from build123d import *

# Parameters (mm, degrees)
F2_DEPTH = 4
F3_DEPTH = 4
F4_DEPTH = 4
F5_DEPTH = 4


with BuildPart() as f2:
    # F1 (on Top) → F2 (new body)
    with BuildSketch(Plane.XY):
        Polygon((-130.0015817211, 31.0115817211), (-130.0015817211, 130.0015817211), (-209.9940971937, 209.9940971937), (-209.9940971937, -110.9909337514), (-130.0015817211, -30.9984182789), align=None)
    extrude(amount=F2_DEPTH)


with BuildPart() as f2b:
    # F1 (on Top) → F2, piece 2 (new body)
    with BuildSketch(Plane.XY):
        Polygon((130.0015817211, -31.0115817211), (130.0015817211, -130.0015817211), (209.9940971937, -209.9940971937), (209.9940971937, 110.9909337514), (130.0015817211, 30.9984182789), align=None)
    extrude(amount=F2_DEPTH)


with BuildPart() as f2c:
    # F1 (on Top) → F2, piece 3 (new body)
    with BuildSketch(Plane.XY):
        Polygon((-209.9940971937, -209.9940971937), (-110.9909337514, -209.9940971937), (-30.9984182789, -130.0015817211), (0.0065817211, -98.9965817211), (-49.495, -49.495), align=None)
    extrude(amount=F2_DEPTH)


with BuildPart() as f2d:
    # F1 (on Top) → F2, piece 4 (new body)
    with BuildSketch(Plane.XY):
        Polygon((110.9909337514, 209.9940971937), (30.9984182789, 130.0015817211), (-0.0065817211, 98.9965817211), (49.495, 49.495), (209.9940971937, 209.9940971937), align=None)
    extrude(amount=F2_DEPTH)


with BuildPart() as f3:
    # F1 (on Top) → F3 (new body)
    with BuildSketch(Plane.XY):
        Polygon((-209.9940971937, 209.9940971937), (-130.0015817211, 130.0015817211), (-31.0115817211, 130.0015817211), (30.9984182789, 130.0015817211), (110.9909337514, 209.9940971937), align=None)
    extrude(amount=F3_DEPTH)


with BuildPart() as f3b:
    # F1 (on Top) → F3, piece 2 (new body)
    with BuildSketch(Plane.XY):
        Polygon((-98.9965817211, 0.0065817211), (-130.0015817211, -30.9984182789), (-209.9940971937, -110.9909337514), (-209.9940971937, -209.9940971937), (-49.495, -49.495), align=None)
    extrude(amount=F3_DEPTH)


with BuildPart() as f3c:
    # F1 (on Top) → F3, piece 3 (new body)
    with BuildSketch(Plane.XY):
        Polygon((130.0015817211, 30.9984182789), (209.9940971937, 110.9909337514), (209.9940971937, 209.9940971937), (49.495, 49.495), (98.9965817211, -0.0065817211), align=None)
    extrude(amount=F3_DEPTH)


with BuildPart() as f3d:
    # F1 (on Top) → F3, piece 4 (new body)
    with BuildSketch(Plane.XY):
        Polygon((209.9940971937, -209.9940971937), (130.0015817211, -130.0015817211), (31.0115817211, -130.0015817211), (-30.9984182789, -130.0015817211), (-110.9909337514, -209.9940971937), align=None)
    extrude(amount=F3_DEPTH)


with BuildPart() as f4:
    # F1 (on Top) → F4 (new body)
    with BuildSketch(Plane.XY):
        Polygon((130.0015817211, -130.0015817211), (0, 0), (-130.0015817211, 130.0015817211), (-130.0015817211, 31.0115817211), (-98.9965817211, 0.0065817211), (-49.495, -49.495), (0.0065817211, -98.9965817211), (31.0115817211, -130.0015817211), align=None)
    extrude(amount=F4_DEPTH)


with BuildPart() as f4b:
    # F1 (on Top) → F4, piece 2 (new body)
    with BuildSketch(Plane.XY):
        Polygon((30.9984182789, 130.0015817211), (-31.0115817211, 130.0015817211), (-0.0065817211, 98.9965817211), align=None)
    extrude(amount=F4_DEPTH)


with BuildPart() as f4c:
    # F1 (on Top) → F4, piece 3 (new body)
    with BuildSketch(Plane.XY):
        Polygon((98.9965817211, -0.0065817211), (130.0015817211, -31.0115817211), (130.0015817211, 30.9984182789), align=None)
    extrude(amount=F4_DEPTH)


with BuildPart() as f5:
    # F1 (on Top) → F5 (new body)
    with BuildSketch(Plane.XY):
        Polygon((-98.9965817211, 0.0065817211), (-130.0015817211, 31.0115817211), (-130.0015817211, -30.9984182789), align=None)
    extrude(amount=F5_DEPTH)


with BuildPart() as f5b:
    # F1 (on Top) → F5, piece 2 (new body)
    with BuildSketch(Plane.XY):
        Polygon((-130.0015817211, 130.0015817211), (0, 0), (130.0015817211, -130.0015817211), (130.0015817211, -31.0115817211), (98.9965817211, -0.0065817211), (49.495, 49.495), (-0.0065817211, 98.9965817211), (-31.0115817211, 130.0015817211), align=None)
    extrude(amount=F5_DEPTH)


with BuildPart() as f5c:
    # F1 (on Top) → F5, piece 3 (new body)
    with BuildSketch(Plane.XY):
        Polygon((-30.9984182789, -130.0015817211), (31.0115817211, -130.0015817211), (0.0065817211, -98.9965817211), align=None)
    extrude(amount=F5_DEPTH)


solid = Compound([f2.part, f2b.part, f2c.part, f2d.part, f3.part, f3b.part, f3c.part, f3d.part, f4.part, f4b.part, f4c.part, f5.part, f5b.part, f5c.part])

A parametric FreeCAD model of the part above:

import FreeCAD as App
import Part
import Sketcher
Q = App.Units.Quantity

doc = App.newDocument("Part")
body = doc.addObject("PartDesign::Body", "Body")

# Sketch on XY plane
sketch1 = body.newObject("Sketcher::SketchObject", "Sketch")
sketch1.AttachmentSupport = (doc.getObject("XY_Plane"), [""])
sketch1.MapMode = "FlatFace"
sketch1.addGeometry([
    Part.LineSegment(App.Vector(-130, 130, 0), App.Vector(-210, 210, 0)),
    Part.LineSegment(App.Vector(-210, 210, 0), App.Vector(-210, -111, 0)),
    Part.LineSegment(App.Vector(-210, -111, 0), App.Vector(-130, -31, 0)),
    Part.LineSegment(App.Vector(-130, -31, 0), App.Vector(-130, 130, 0)),
], False)
sketch1.addConstraint([
    Sketcher.Constraint("Coincident", 0, 2, 1, 1),
    Sketcher.Constraint("Coincident", 1, 2, 2, 1),
    Sketcher.Constraint("Coincident", 2, 2, 3, 1),
    Sketcher.Constraint("Coincident", 3, 2, 0, 1),
    Sketcher.Constraint("Vertical", 1),
    Sketcher.Constraint("Vertical", 3),
    Sketcher.Constraint("Perpendicular", 0, 2),
    Sketcher.Constraint("Equal", 0, 2),
    Sketcher.Constraint("DistanceY", 3, 1, 3, 2, 161.0),
    Sketcher.Constraint("Distance", 0, 113.1265),
    Sketcher.Constraint("DistanceX", 2, 2, -1, 1, 130.001582),
    Sketcher.Constraint("DistanceY", 2, 2, -1, 1, 30.998418),
])
pad1 = body.newObject("PartDesign::Pad", "Pad")
pad1.Profile = sketch1
pad1.Length = 4
body2 = doc.addObject("PartDesign::Body", "Body001")

# Sketch on XY plane
sketch2 = body2.newObject("Sketcher::SketchObject", "Sketch001")
sketch2.AttachmentSupport = (doc.getObject("XY_Plane001"), [""])
sketch2.MapMode = "FlatFace"
sketch2.addGeometry([
    Part.LineSegment(App.Vector(130, -130, 0), App.Vector(210, -210, 0)),
    Part.LineSegment(App.Vector(210, -210, 0), App.Vector(210, 111, 0)),
    Part.LineSegment(App.Vector(210, 111, 0), App.Vector(130, 31, 0)),
    Part.LineSegment(App.Vector(130, 31, 0), App.Vector(130, -130, 0)),
], False)
sketch2.addConstraint([
    Sketcher.Constraint("Coincident", 0, 2, 1, 1),
    Sketcher.Constraint("Coincident", 1, 2, 2, 1),
    Sketcher.Constraint("Coincident", 2, 2, 3, 1),
    Sketcher.Constraint("Coincident", 3, 2, 0, 1),
    Sketcher.Constraint("Vertical", 1),
    Sketcher.Constraint("Vertical", 3),
    Sketcher.Constraint("Perpendicular", 0, 2),
    Sketcher.Constraint("Equal", 0, 2),
    Sketcher.Constraint("DistanceY", 3, 2, 3, 1, 161.0),
    Sketcher.Constraint("Distance", 0, 113.1265),
    Sketcher.Constraint("DistanceX", -1, 1, 2, 2, 130.001582),
    Sketcher.Constraint("DistanceY", -1, 1, 2, 2, 30.998418),
])
pad2 = body2.newObject("PartDesign::Pad", "Pad001")
pad2.Profile = sketch2
pad2.Length = 4
body3 = doc.addObject("PartDesign::Body", "Body002")

# Sketch on XY plane
sketch3 = body3.newObject("Sketcher::SketchObject", "Sketch002")
sketch3.AttachmentSupport = (doc.getObject("XY_Plane002"), [""])
sketch3.MapMode = "FlatFace"
sketch3.addGeometry([
    Part.LineSegment(App.Vector(-210, -210, 0), App.Vector(-111, -210, 0)),
    Part.LineSegment(App.Vector(-111, -210, 0), App.Vector(0, -99, 0)),
    Part.LineSegment(App.Vector(0, -99, 0), App.Vector(-49, -49, 0)),
    Part.LineSegment(App.Vector(-49, -49, 0), App.Vector(-210, -210, 0)),
], False)
sketch3.addConstraint([
    Sketcher.Constraint("Coincident", 0, 2, 1, 1),
    Sketcher.Constraint("Coincident", 1, 2, 2, 1),
    Sketcher.Constraint("Coincident", 2, 2, 3, 1),
    Sketcher.Constraint("Coincident", 3, 2, 0, 1),
    Sketcher.Constraint("Horizontal", 0),
    Sketcher.Constraint("Perpendicular", 1, 2),
    Sketcher.Constraint("Perpendicular", 2, 3),
    Sketcher.Constraint("Angle", 1, Q("45 deg")),
    Sketcher.Constraint("Distance", 3, 226.98),
    Sketcher.Constraint("DistanceX", 2, 2, -1, 1, 49.495),
    Sketcher.Constraint("DistanceY", 2, 2, -1, 1, 49.495),
    Sketcher.Constraint("Distance", 1, 156.974192),
])
pad3 = body3.newObject("PartDesign::Pad", "Pad002")
pad3.Profile = sketch3
pad3.Length = 4
body4 = doc.addObject("PartDesign::Body", "Body003")

# Sketch on XY plane
sketch4 = body4.newObject("Sketcher::SketchObject", "Sketch003")
sketch4.AttachmentSupport = (doc.getObject("XY_Plane003"), [""])
sketch4.MapMode = "FlatFace"
sketch4.addGeometry([
    Part.LineSegment(App.Vector(111, 210, 0), App.Vector(0, 99, 0)),
    Part.LineSegment(App.Vector(0, 99, 0), App.Vector(49, 49, 0)),
    Part.LineSegment(App.Vector(49, 49, 0), App.Vector(210, 210, 0)),
    Part.LineSegment(App.Vector(210, 210, 0), App.Vector(111, 210, 0)),
], False)
sketch4.addConstraint([
    Sketcher.Constraint("Coincident", 0, 2, 1, 1),
    Sketcher.Constraint("Coincident", 1, 2, 2, 1),
    Sketcher.Constraint("Coincident", 2, 2, 3, 1),
    Sketcher.Constraint("Coincident", 3, 2, 0, 1),
    Sketcher.Constraint("Horizontal", 3),
    Sketcher.Constraint("Perpendicular", 0, 1),
    Sketcher.Constraint("Perpendicular", 1, 2),
    Sketcher.Constraint("Angle", 0, Q("-135 deg")),
    Sketcher.Constraint("Distance", 2, 226.98),
    Sketcher.Constraint("DistanceX", -1, 1, 1, 2, 49.495),
    Sketcher.Constraint("DistanceY", -1, 1, 1, 2, 49.495),
    Sketcher.Constraint("Distance", 0, 156.974192),
])
pad4 = body4.newObject("PartDesign::Pad", "Pad003")
pad4.Profile = sketch4
pad4.Length = 4
body5 = doc.addObject("PartDesign::Body", "Body004")

# Sketch on XY plane
sketch5 = body5.newObject("Sketcher::SketchObject", "Sketch004")
sketch5.AttachmentSupport = (doc.getObject("XY_Plane004"), [""])
sketch5.MapMode = "FlatFace"
sketch5.addGeometry([
    Part.LineSegment(App.Vector(-210, 210, 0), App.Vector(-130, 130, 0)),
    Part.LineSegment(App.Vector(-130, 130, 0), App.Vector(31, 130, 0)),
    Part.LineSegment(App.Vector(31, 130, 0), App.Vector(111, 210, 0)),
    Part.LineSegment(App.Vector(111, 210, 0), App.Vector(-210, 210, 0)),
], False)
sketch5.addConstraint([
    Sketcher.Constraint("Coincident", 0, 2, 1, 1),
    Sketcher.Constraint("Coincident", 1, 2, 2, 1),
    Sketcher.Constraint("Coincident", 2, 2, 3, 1),
    Sketcher.Constraint("Coincident", 3, 2, 0, 1),
    Sketcher.Constraint("Horizontal", 1),
    Sketcher.Constraint("Horizontal", 3),
    Sketcher.Constraint("Perpendicular", 0, 2),
    Sketcher.Constraint("Equal", 0, 2),
    Sketcher.Constraint("DistanceX", 1, 1, 1, 2, 161.0),
    Sketcher.Constraint("Distance", 0, 113.1265),
    Sketcher.Constraint("DistanceX", 0, 2, -1, 1, 130.001582),
    Sketcher.Constraint("DistanceY", -1, 1, 0, 2, 130.001582),
])
pad5 = body5.newObject("PartDesign::Pad", "Pad004")
pad5.Profile = sketch5
pad5.Length = 4
body6 = doc.addObject("PartDesign::Body", "Body005")

# Sketch on XY plane
sketch6 = body6.newObject("Sketcher::SketchObject", "Sketch005")
sketch6.AttachmentSupport = (doc.getObject("XY_Plane005"), [""])
sketch6.MapMode = "FlatFace"
sketch6.addGeometry([
    Part.LineSegment(App.Vector(-99, 0, 0), App.Vector(-210, -111, 0)),
    Part.LineSegment(App.Vector(-210, -111, 0), App.Vector(-210, -210, 0)),
    Part.LineSegment(App.Vector(-210, -210, 0), App.Vector(-49, -49, 0)),
    Part.LineSegment(App.Vector(-49, -49, 0), App.Vector(-99, 0, 0)),
], False)
sketch6.addConstraint([
    Sketcher.Constraint("Coincident", 0, 2, 1, 1),
    Sketcher.Constraint("Coincident", 1, 2, 2, 1),
    Sketcher.Constraint("Coincident", 2, 2, 3, 1),
    Sketcher.Constraint("Coincident", 3, 2, 0, 1),
    Sketcher.Constraint("Vertical", 1),
    Sketcher.Constraint("Parallel", 0, 2),
    Sketcher.Constraint("Perpendicular", 2, 3),
    Sketcher.Constraint("Angle", 0, Q("-135 deg")),
    Sketcher.Constraint("Distance", 2, 226.98),
    Sketcher.Constraint("DistanceX", 2, 2, -1, 1, 49.495),
    Sketcher.Constraint("DistanceY", 2, 2, -1, 1, 49.495),
    Sketcher.Constraint("Distance", 0, 156.974192),
])
pad6 = body6.newObject("PartDesign::Pad", "Pad005")
pad6.Profile = sketch6
pad6.Length = 4
body7 = doc.addObject("PartDesign::Body", "Body006")

# Sketch on XY plane
sketch7 = body7.newObject("Sketcher::SketchObject", "Sketch006")
sketch7.AttachmentSupport = (doc.getObject("XY_Plane006"), [""])
sketch7.MapMode = "FlatFace"
sketch7.addGeometry([
    Part.LineSegment(App.Vector(210, 111, 0), App.Vector(210, 210, 0)),
    Part.LineSegment(App.Vector(210, 210, 0), App.Vector(49, 49, 0)),
    Part.LineSegment(App.Vector(49, 49, 0), App.Vector(99, 0, 0)),
    Part.LineSegment(App.Vector(99, 0, 0), App.Vector(210, 111, 0)),
], False)
sketch7.addConstraint([
    Sketcher.Constraint("Coincident", 0, 2, 1, 1),
    Sketcher.Constraint("Coincident", 1, 2, 2, 1),
    Sketcher.Constraint("Coincident", 2, 2, 3, 1),
    Sketcher.Constraint("Coincident", 3, 2, 0, 1),
    Sketcher.Constraint("Vertical", 0),
    Sketcher.Constraint("Perpendicular", 1, 2),
    Sketcher.Constraint("Perpendicular", 2, 3),
    Sketcher.Constraint("Angle", 1, Q("-135 deg")),
    Sketcher.Constraint("Distance", 1, 226.98),
    Sketcher.Constraint("DistanceX", -1, 1, 1, 2, 49.495),
    Sketcher.Constraint("DistanceY", -1, 1, 1, 2, 49.495),
    Sketcher.Constraint("Distance", 2, 70.005808),
])
pad7 = body7.newObject("PartDesign::Pad", "Pad006")
pad7.Profile = sketch7
pad7.Length = 4
body8 = doc.addObject("PartDesign::Body", "Body007")

# Sketch on XY plane
sketch8 = body8.newObject("Sketcher::SketchObject", "Sketch007")
sketch8.AttachmentSupport = (doc.getObject("XY_Plane007"), [""])
sketch8.MapMode = "FlatFace"
sketch8.addGeometry([
    Part.LineSegment(App.Vector(210, -210, 0), App.Vector(130, -130, 0)),
    Part.LineSegment(App.Vector(130, -130, 0), App.Vector(-31, -130, 0)),
    Part.LineSegment(App.Vector(-31, -130, 0), App.Vector(-111, -210, 0)),
    Part.LineSegment(App.Vector(-111, -210, 0), App.Vector(210, -210, 0)),
], False)
sketch8.addConstraint([
    Sketcher.Constraint("Coincident", 0, 2, 1, 1),
    Sketcher.Constraint("Coincident", 1, 2, 2, 1),
    Sketcher.Constraint("Coincident", 2, 2, 3, 1),
    Sketcher.Constraint("Coincident", 3, 2, 0, 1),
    Sketcher.Constraint("Horizontal", 1),
    Sketcher.Constraint("Horizontal", 3),
    Sketcher.Constraint("Perpendicular", 0, 2),
    Sketcher.Constraint("Equal", 0, 2),
    Sketcher.Constraint("DistanceX", 1, 2, 1, 1, 161.0),
    Sketcher.Constraint("Distance", 0, 113.1265),
    Sketcher.Constraint("DistanceX", -1, 1, 0, 2, 130.001582),
    Sketcher.Constraint("DistanceY", 0, 2, -1, 1, 130.001582),
])
pad8 = body8.newObject("PartDesign::Pad", "Pad007")
pad8.Profile = sketch8
pad8.Length = 4
body9 = doc.addObject("PartDesign::Body", "Body008")

# Sketch on XY plane
sketch9 = body9.newObject("Sketcher::SketchObject", "Sketch008")
sketch9.AttachmentSupport = (doc.getObject("XY_Plane008"), [""])
sketch9.MapMode = "FlatFace"
sketch9.addGeometry([
    Part.LineSegment(App.Vector(130, -130, 0), App.Vector(-130, 130, 0)),
    Part.LineSegment(App.Vector(-130, 130, 0), App.Vector(-130, 31, 0)),
    Part.LineSegment(App.Vector(-130, 31, 0), App.Vector(31, -130, 0)),
    Part.LineSegment(App.Vector(31, -130, 0), App.Vector(130, -130, 0)),
], False)
sketch9.addConstraint([
    Sketcher.Constraint("Coincident", 0, 2, 1, 1),
    Sketcher.Constraint("Coincident", 1, 2, 2, 1),
    Sketcher.Constraint("Coincident", 2, 2, 3, 1),
    Sketcher.Constraint("Coincident", 3, 2, 0, 1),
    Sketcher.Constraint("Vertical", 1),
    Sketcher.Constraint("Horizontal", 3),
    Sketcher.Constraint("Symmetric", 0, 2, 3, 2, -1, 1),
    Sketcher.Constraint("Parallel", 0, 2),
    Sketcher.Constraint("Equal", 3, 1),
    Sketcher.Constraint("Distance", 0, 367.7),
    Sketcher.Constraint("DistanceX", 3, 1, 3, 2, 98.99),
])
pad9 = body9.newObject("PartDesign::Pad", "Pad008")
pad9.Profile = sketch9
pad9.Length = 4
body10 = doc.addObject("PartDesign::Body", "Body009")

# Sketch on XY plane
sketch10 = body10.newObject("Sketcher::SketchObject", "Sketch009")
sketch10.AttachmentSupport = (doc.getObject("XY_Plane009"), [""])
sketch10.MapMode = "FlatFace"
sketch10.addGeometry([
    Part.LineSegment(App.Vector(31, 130, 0), App.Vector(-31, 130, 0)),
    Part.LineSegment(App.Vector(-31, 130, 0), App.Vector(0, 99, 0)),
    Part.LineSegment(App.Vector(0, 99, 0), App.Vector(31, 130, 0)),
], False)
sketch10.addConstraint([
    Sketcher.Constraint("Coincident", 0, 2, 1, 1),
    Sketcher.Constraint("Coincident", 1, 2, 2, 1),
    Sketcher.Constraint("Coincident", 2, 2, 0, 1),
    Sketcher.Constraint("Horizontal", 0),
    Sketcher.Constraint("Perpendicular", 1, 2),
    Sketcher.Constraint("Equal", 1, 2),
    Sketcher.Constraint("DistanceX", 0, 2, 0, 1, 62.01),
    Sketcher.Constraint("DistanceX", 0, 2, -1, 1, 31.011582),
    Sketcher.Constraint("DistanceY", -1, 1, 0, 2, 130.001582),
])
pad10 = body10.newObject("PartDesign::Pad", "Pad009")
pad10.Profile = sketch10
pad10.Length = 4
body11 = doc.addObject("PartDesign::Body", "Body010")

# Sketch on XY plane
sketch11 = body11.newObject("Sketcher::SketchObject", "Sketch010")
sketch11.AttachmentSupport = (doc.getObject("XY_Plane010"), [""])
sketch11.MapMode = "FlatFace"
sketch11.addGeometry([
    Part.LineSegment(App.Vector(99, 0, 0), App.Vector(130, -31, 0)),
    Part.LineSegment(App.Vector(130, -31, 0), App.Vector(130, 31, 0)),
    Part.LineSegment(App.Vector(130, 31, 0), App.Vector(99, 0, 0)),
], False)
sketch11.addConstraint([
    Sketcher.Constraint("Coincident", 0, 2, 1, 1),
    Sketcher.Constraint("Coincident", 1, 2, 2, 1),
    Sketcher.Constraint("Coincident", 2, 2, 0, 1),
    Sketcher.Constraint("Vertical", 1),
    Sketcher.Constraint("Perpendicular", 0, 2),
    Sketcher.Constraint("Equal", 0, 2),
    Sketcher.Constraint("DistanceY", 1, 1, 1, 2, 62.01),
    Sketcher.Constraint("DistanceX", -1, 1, 0, 2, 130.001582),
    Sketcher.Constraint("DistanceY", 0, 2, -1, 1, 31.011582),
])
pad11 = body11.newObject("PartDesign::Pad", "Pad010")
pad11.Profile = sketch11
pad11.Length = 4
body12 = doc.addObject("PartDesign::Body", "Body011")

# Sketch on XY plane
sketch12 = body12.newObject("Sketcher::SketchObject", "Sketch011")
sketch12.AttachmentSupport = (doc.getObject("XY_Plane011"), [""])
sketch12.MapMode = "FlatFace"
sketch12.addGeometry([
    Part.LineSegment(App.Vector(-99, 0, 0), App.Vector(-130, 31, 0)),
    Part.LineSegment(App.Vector(-130, 31, 0), App.Vector(-130, -31, 0)),
    Part.LineSegment(App.Vector(-130, -31, 0), App.Vector(-99, 0, 0)),
], False)
sketch12.addConstraint([
    Sketcher.Constraint("Coincident", 0, 2, 1, 1),
    Sketcher.Constraint("Coincident", 1, 2, 2, 1),
    Sketcher.Constraint("Coincident", 2, 2, 0, 1),
    Sketcher.Constraint("Vertical", 1),
    Sketcher.Constraint("Perpendicular", 0, 2),
    Sketcher.Constraint("Equal", 0, 2),
    Sketcher.Constraint("DistanceY", 1, 2, 1, 1, 62.01),
    Sketcher.Constraint("DistanceX", 0, 2, -1, 1, 130.001582),
    Sketcher.Constraint("DistanceY", -1, 1, 0, 2, 31.011582),
])
pad12 = body12.newObject("PartDesign::Pad", "Pad011")
pad12.Profile = sketch12
pad12.Length = 4
body13 = doc.addObject("PartDesign::Body", "Body012")

# Sketch on XY plane
sketch13 = body13.newObject("Sketcher::SketchObject", "Sketch012")
sketch13.AttachmentSupport = (doc.getObject("XY_Plane012"), [""])
sketch13.MapMode = "FlatFace"
sketch13.addGeometry([
    Part.LineSegment(App.Vector(-130, 130, 0), App.Vector(130, -130, 0)),
    Part.LineSegment(App.Vector(130, -130, 0), App.Vector(130, -31, 0)),
    Part.LineSegment(App.Vector(130, -31, 0), App.Vector(-31, 130, 0)),
    Part.LineSegment(App.Vector(-31, 130, 0), App.Vector(-130, 130, 0)),
], False)
sketch13.addConstraint([
    Sketcher.Constraint("Coincident", 0, 2, 1, 1),
    Sketcher.Constraint("Coincident", 1, 2, 2, 1),
    Sketcher.Constraint("Coincident", 2, 2, 3, 1),
    Sketcher.Constraint("Coincident", 3, 2, 0, 1),
    Sketcher.Constraint("Vertical", 1),
    Sketcher.Constraint("Horizontal", 3),
    Sketcher.Constraint("Symmetric", 0, 2, 3, 2, -1, 1),
    Sketcher.Constraint("Parallel", 0, 2),
    Sketcher.Constraint("Equal", 3, 1),
    Sketcher.Constraint("Distance", 0, 367.7),
    Sketcher.Constraint("DistanceX", 3, 2, 3, 1, 98.99),
])
pad13 = body13.newObject("PartDesign::Pad", "Pad012")
pad13.Profile = sketch13
pad13.Length = 4
body14 = doc.addObject("PartDesign::Body", "Body013")

# Sketch on XY plane
sketch14 = body14.newObject("Sketcher::SketchObject", "Sketch013")
sketch14.AttachmentSupport = (doc.getObject("XY_Plane013"), [""])
sketch14.MapMode = "FlatFace"
sketch14.addGeometry([
    Part.LineSegment(App.Vector(-31, -130, 0), App.Vector(31, -130, 0)),
    Part.LineSegment(App.Vector(31, -130, 0), App.Vector(0, -99, 0)),
    Part.LineSegment(App.Vector(0, -99, 0), App.Vector(-31, -130, 0)),
], False)
sketch14.addConstraint([
    Sketcher.Constraint("Coincident", 0, 2, 1, 1),
    Sketcher.Constraint("Coincident", 1, 2, 2, 1),
    Sketcher.Constraint("Coincident", 2, 2, 0, 1),
    Sketcher.Constraint("Horizontal", 0),
    Sketcher.Constraint("Perpendicular", 1, 2),
    Sketcher.Constraint("Equal", 1, 2),
    Sketcher.Constraint("DistanceX", 0, 1, 0, 2, 62.01),
    Sketcher.Constraint("DistanceX", -1, 1, 0, 2, 31.011582),
    Sketcher.Constraint("DistanceY", 0, 2, -1, 1, 130.001582),
])
pad14 = body14.newObject("PartDesign::Pad", "Pad013")
pad14.Profile = sketch14
pad14.Length = 4

doc.recompute()
